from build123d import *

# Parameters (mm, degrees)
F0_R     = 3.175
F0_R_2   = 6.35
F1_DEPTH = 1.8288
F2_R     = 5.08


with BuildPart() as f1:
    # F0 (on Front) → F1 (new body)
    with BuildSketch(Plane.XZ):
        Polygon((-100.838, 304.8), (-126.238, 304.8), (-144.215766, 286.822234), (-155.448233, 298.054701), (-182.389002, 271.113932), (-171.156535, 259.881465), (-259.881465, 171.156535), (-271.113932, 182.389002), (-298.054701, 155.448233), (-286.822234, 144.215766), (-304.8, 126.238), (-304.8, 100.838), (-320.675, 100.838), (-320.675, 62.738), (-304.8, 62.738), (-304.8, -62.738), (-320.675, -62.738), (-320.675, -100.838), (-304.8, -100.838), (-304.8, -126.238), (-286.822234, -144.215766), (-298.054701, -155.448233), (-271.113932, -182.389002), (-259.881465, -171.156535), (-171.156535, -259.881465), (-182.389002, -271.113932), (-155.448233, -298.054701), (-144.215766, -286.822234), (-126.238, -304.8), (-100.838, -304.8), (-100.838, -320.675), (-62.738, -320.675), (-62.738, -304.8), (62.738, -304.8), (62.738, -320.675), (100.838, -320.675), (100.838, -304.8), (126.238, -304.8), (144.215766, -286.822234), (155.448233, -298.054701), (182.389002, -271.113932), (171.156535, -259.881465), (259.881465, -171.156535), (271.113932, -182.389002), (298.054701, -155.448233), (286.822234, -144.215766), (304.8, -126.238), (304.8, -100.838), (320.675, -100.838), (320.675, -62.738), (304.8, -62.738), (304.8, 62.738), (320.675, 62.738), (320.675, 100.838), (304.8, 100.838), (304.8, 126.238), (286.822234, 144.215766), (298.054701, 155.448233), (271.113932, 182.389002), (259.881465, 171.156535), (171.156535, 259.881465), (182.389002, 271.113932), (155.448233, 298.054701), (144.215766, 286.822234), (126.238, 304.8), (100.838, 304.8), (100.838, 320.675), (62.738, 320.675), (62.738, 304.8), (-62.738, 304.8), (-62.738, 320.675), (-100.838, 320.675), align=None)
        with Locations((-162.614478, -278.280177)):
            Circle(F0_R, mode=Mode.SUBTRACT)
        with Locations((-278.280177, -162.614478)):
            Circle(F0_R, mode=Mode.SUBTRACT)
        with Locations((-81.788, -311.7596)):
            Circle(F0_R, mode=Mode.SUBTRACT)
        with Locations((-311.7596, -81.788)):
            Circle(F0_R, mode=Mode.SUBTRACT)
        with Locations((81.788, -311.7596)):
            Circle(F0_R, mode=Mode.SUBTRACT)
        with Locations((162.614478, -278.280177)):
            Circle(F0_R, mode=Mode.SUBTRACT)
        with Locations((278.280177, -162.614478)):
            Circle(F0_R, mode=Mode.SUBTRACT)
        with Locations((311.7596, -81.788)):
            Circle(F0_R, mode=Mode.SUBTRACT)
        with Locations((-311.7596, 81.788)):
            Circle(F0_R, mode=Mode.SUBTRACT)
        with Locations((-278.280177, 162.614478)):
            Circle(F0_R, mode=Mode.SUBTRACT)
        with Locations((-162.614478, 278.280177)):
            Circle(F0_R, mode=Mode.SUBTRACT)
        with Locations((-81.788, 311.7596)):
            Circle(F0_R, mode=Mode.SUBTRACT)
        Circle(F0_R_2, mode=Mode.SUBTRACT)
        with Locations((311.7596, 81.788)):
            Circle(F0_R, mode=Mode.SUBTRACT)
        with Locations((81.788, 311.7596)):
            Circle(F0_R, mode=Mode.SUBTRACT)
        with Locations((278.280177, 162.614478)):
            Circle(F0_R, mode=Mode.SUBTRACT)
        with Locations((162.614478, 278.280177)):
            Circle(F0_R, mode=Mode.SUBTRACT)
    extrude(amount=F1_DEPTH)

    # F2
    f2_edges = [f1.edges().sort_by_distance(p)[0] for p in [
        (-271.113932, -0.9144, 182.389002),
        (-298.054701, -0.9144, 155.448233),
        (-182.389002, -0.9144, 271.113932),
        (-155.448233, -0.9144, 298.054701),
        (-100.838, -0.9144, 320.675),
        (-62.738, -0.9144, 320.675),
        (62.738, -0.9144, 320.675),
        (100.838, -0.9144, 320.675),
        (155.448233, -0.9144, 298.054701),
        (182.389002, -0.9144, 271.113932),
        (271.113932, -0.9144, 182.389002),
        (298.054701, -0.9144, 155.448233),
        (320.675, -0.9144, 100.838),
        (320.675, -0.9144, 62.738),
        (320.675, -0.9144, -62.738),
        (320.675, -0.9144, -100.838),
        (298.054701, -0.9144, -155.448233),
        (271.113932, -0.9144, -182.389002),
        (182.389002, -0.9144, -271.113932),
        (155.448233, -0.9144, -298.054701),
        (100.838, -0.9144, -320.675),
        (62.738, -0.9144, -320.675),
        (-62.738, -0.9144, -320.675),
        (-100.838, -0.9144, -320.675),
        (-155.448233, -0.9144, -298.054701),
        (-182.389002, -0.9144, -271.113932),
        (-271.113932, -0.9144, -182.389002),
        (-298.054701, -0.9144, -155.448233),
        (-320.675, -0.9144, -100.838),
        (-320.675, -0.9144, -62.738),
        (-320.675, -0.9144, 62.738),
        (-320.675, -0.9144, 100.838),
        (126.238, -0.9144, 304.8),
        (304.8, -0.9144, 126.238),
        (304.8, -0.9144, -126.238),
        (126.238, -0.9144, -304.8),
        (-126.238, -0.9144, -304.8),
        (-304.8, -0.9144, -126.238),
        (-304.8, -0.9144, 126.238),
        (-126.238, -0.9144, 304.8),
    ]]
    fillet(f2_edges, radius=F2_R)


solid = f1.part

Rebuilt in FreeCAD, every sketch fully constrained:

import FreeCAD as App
import Part
import Sketcher
from FreeCAD import Vector
Q = App.Units.Quantity


def edges_at(feature, points):
    """Names of the edges that pass closest to the given points."""
    edges = feature.Shape.Edges
    near = lambda p: min(range(len(edges)), key=lambda i: edges[i].distToShape(Part.Vertex(*p))[0])
    return sorted({f"Edge{near(p) + 1}" for p in points})


def add_polygon(sketch, points):
    """Adds a closed chain of lines whose ends are joined by coincident constraints."""
    first, n = sketch.GeometryCount, len(points)
    for a, b in zip(points, points[1:] + points[:1]):
        sketch.addGeometry(Part.LineSegment(App.Vector(*a, 0), App.Vector(*b, 0)), False)
    for i in range(n):
        sketch.addConstraint(Sketcher.Constraint("Coincident", first + i, 2, first + (i + 1) % n, 1))

doc = App.newDocument("Part")
body = doc.addObject("PartDesign::Body", "Body")

sketch1 = doc.addObject("Sketcher::SketchObject", "Sketch")
body.addObject(sketch1)
sketch1.AttachmentSupport = (doc.XZ_Plane, [""])
sketch1.MapMode = "FlatFace"
add_polygon(sketch1, [(-100.8, 304.8), (-126.2, 304.8), (-144.2, 286.8), (-155.4, 298.1), (-182.4, 271.1), (-171.2, 259.9), (-259.9, 171.2), (-271.1, 182.4), (-298.1, 155.4), (-286.8, 144.2), (-304.8, 126.2), (-304.8, 100.8), (-320.7, 100.8), (-320.7, 62.7), (-304.8, 62.7), (-304.8, -62.7), (-320.7, -62.7), (-320.7, -100.8), (-304.8, -100.8), (-304.8, -126.2), (-286.8, -144.2), (-298.1, -155.4), (-271.1, -182.4), (-259.9, -171.2), (-171.2, -259.9), (-182.4, -271.1), (-155.4, -298.1), (-144.2, -286.8), (-126.2, -304.8), (-100.8, -304.8), (-100.8, -320.7), (-62.7, -320.7), (-62.7, -304.8), (62.7, -304.8), (62.7, -320.7), (100.8, -320.7), (100.8, -304.8), (126.2, -304.8), (144.2, -286.8), (155.4, -298.1), (182.4, -271.1), (171.2, -259.9), (259.9, -171.2), (271.1, -182.4), (298.1, -155.4), (286.8, -144.2), (304.8, -126.2), (304.8, -100.8), (320.7, -100.8), (320.7, -62.7), (304.8, -62.7), (304.8, 62.7), (320.7, 62.7), (320.7, 100.8), (304.8, 100.8), (304.8, 126.2), (286.8, 144.2), (298.1, 155.4), (271.1, 182.4), (259.9, 171.2), (171.2, 259.9), (182.4, 271.1), (155.4, 298.1), (144.2, 286.8), (126.2, 304.8), (100.8, 304.8), (100.8, 320.7), (62.7, 320.7), (62.7, 304.8), (-62.7, 304.8), (-62.7, 320.7), (-100.8, 320.7)])
sketch1.addGeometry(Part.Circle(Vector(-162.6, -278.3, 0), Vector(0, 0, 1), 3.2), False)
sketch1.addGeometry(Part.Circle(Vector(-278.3, -162.6, 0), Vector(0, 0, 1), 3.2), False)
sketch1.addGeometry(Part.Circle(Vector(-81.8, -311.8, 0), Vector(0, 0, 1), 3.2), False)
sketch1.addGeometry(Part.Circle(Vector(-311.8, -81.8, 0), Vector(0, 0, 1), 3.2), False)
sketch1.addGeometry(Part.Circle(Vector(81.8, -311.8, 0), Vector(0, 0, 1), 3.2), False)
sketch1.addGeometry(Part.Circle(Vector(162.6, -278.3, 0), Vector(0, 0, 1), 3.2), False)
sketch1.addGeometry(Part.Circle(Vector(278.3, -162.6, 0), Vector(0, 0, 1), 3.2), False)
sketch1.addGeometry(Part.Circle(Vector(311.8, -81.8, 0), Vector(0, 0, 1), 3.2), False)
sketch1.addGeometry(Part.Circle(Vector(-311.8, 81.8, 0), Vector(0, 0, 1), 3.2), False)
sketch1.addGeometry(Part.Circle(Vector(-278.3, 162.6, 0), Vector(0, 0, 1), 3.2), False)
sketch1.addGeometry(Part.Circle(Vector(-162.6, 278.3, 0), Vector(0, 0, 1), 3.2), False)
sketch1.addGeometry(Part.Circle(Vector(-81.8, 311.8, 0), Vector(0, 0, 1), 3.2), False)
sketch1.addGeometry(Part.Circle(Vector(0, 0, 0), Vector(0, 0, 1), 6.3), False)
sketch1.addGeometry(Part.Circle(Vector(311.8, 81.8, 0), Vector(0, 0, 1), 3.2), False)
sketch1.addGeometry(Part.Circle(Vector(81.8, 311.8, 0), Vector(0, 0, 1), 3.2), False)
sketch1.addGeometry(Part.Circle(Vector(278.3, 162.6, 0), Vector(0, 0, 1), 3.2), False)
sketch1.addGeometry(Part.Circle(Vector(162.6, 278.3, 0), Vector(0, 0, 1), 3.2), False)
sketch1.addConstraint([
    Sketcher.Constraint("Horizontal", 0),
    Sketcher.Constraint("Vertical", 10),
    Sketcher.Constraint("Horizontal", 11),
    Sketcher.Constraint("Vertical", 12),
    Sketcher.Constraint("Horizontal", 13),
    Sketcher.Constraint("Vertical", 14),
    Sketcher.Constraint("Horizontal", 15),
    Sketcher.Constraint("Vertical", 16),
    Sketcher.Constraint("Horizontal", 17),
    Sketcher.Constraint("Vertical", 18),
    Sketcher.Constraint("Horizontal", 28),
    Sketcher.Constraint("Vertical", 29),
    Sketcher.Constraint("Horizontal", 30),
    Sketcher.Constraint("Vertical", 31),
    Sketcher.Constraint("Horizontal", 32),
    Sketcher.Constraint("Vertical", 33),
    Sketcher.Constraint("Horizontal", 34),
    Sketcher.Constraint("Vertical", 35),
    Sketcher.Constraint("Horizontal", 36),
    Sketcher.Constraint("Vertical", 46),
    Sketcher.Constraint("Horizontal", 47),
    Sketcher.Constraint("Vertical", 48),
    Sketcher.Constraint("Horizontal", 49),
    Sketcher.Constraint("Vertical", 50),
    Sketcher.Constraint("Horizontal", 51),
    Sketcher.Constraint("Vertical", 52),
    Sketcher.Constraint("Horizontal", 53),
    Sketcher.Constraint("Vertical", 54),
    Sketcher.Constraint("Horizontal", 64),
    Sketcher.Constraint("Vertical", 65),
    Sketcher.Constraint("Horizontal", 66),
    Sketcher.Constraint("Vertical", 67),
    Sketcher.Constraint("Horizontal", 68),
    Sketcher.Constraint("Vertical", 69),
    Sketcher.Constraint("Horizontal", 70),
    Sketcher.Constraint("Vertical", 71),
    Sketcher.Constraint("Coincident", 84, 3, -1, 1),
    Sketcher.Constraint("Equal", 72, 73),
    Sketcher.Constraint("Equal", 73, 74),
    Sketcher.Constraint("Equal", 74, 75),
    Sketcher.Constraint("Equal", 75, 76),
    Sketcher.Constraint("Equal", 76, 77),
    Sketcher.Constraint("Equal", 77, 78),
    Sketcher.Constraint("Equal", 78, 79),
    Sketcher.Constraint("Equal", 79, 80),
    Sketcher.Constraint("Equal", 80, 81),
    Sketcher.Constraint("Equal", 81, 82),
    Sketcher.Constraint("Equal", 82, 83),
    Sketcher.Constraint("Equal", 83, 85),
    Sketcher.Constraint("Equal", 85, 86),
    Sketcher.Constraint("Equal", 86, 87),
    Sketcher.Constraint("Equal", 87, 88),
    Sketcher.Constraint("Symmetric", 79, 3, 80, 3, -1, 1),
    Sketcher.Constraint("Symmetric", 78, 3, 81, 3, -1, 1),
    Sketcher.Constraint("Symmetric", 77, 3, 82, 3, -1, 1),
    Sketcher.Constraint("Symmetric", 76, 3, 83, 3, -1, 1),
    Sketcher.Constraint("Symmetric", 75, 3, 85, 3, -1, 1),
    Sketcher.Constraint("Symmetric", 74, 3, 86, 3, -1, 1),
    Sketcher.Constraint("Symmetric", 73, 3, 87, 3, -1, 1),
    Sketcher.Constraint("Symmetric", 72, 3, 88, 3, -1, 1),
    Sketcher.Constraint("Symmetric", 0, 2, 36, 2, -1, 1),
    Sketcher.Constraint("Symmetric", 1, 2, 37, 2, -1, 1),
    Sketcher.Constraint("Symmetric", 2, 2, 38, 2, -1, 1),
    Sketcher.Constraint("Symmetric", 3, 2, 39, 2, -1, 1),
    Sketcher.Constraint("Symmetric", 4, 2, 40, 2, -1, 1),
    Sketcher.Constraint("Symmetric", 5, 2, 41, 2, -1, 1),
    Sketcher.Constraint("Symmetric", 6, 2, 42, 2, -1, 1),
    Sketcher.Constraint("Symmetric", 7, 2, 43, 2, -1, 1),
    Sketcher.Constraint("Symmetric", 8, 2, 44, 2, -1, 1),
    Sketcher.Constraint("Symmetric", 9, 2, 45, 2, -1, 1),
    Sketcher.Constraint("Symmetric", 11, 2, 47, 2, -1, 1),
    Sketcher.Constraint("Symmetric", 13, 2, 49, 2, -1, 1),
    Sketcher.Constraint("Symmetric", 15, 2, 51, 2, -1, 1),
    Sketcher.Constraint("Symmetric", 17, 2, 53, 2, -1, 1),
    Sketcher.Constraint("Symmetric", 19, 2, 55, 2, -1, 1),
    Sketcher.Constraint("Symmetric", 20, 2, 56, 2, -1, 1),
    Sketcher.Constraint("Symmetric", 21, 2, 57, 2, -1, 1),
    Sketcher.Constraint("Symmetric", 22, 2, 58, 2, -1, 1),
    Sketcher.Constraint("Symmetric", 23, 2, 59, 2, -1, 1),
    Sketcher.Constraint("Symmetric", 24, 2, 60, 2, -1, 1),
    Sketcher.Constraint("Symmetric", 25, 2, 61, 2, -1, 1),
    Sketcher.Constraint("Symmetric", 26, 2, 62, 2, -1, 1),
    Sketcher.Constraint("Symmetric", 27, 2, 63, 2, -1, 1),
    Sketcher.Constraint("Symmetric", 29, 2, 65, 2, -1, 1),
    Sketcher.Constraint("Symmetric", 31, 2, 67, 2, -1, 1),
    Sketcher.Constraint("Symmetric", 33, 2, 69, 2, -1, 1),
    Sketcher.Constraint("Symmetric", 74, 3, 76, 3, -2),
    Sketcher.Constraint("Symmetric", 72, 3, 77, 3, -2),
    Sketcher.Constraint("Symmetric", 73, 3, 78, 3, -2),
    Sketcher.Constraint("Symmetric", 75, 3, 79, 3, -2),
    Sketcher.Constraint("Symmetric", 30, 2, 33, 2, -2),
    Sketcher.Constraint("Symmetric", 28, 2, 35, 2, -2),
    Sketcher.Constraint("Symmetric", 26, 2, 37, 2, -2),
    Sketcher.Constraint("Symmetric", 25, 2, 38, 2, -2),
    Sketcher.Constraint("Symmetric", 24, 2, 39, 2, -2),
    Sketcher.Constraint("Symmetric", 23, 2, 40, 2, -2),
    Sketcher.Constraint("Symmetric", 22, 2, 41, 2, -2),
    Sketcher.Constraint("Symmetric", 21, 2, 42, 2, -2),
    Sketcher.Constraint("Symmetric", 20, 2, 43, 2, -2),
    Sketcher.Constraint("Symmetric", 19, 2, 44, 2, -2),
    Sketcher.Constraint("Symmetric", 18, 2, 45, 2, -2),
    Sketcher.Constraint("Symmetric", 16, 2, 47, 2, -2),
    Sketcher.Constraint("Perpendicular", 1, 2),
    Sketcher.Constraint("Perpendicular", 2, 3),
    Sketcher.Constraint("Perpendicular", 3, 4),
    Sketcher.Constraint("Perpendicular", 4, 5),
    Sketcher.Constraint("Perpendicular", 5, 6),
    Sketcher.Constraint("Perpendicular", 6, 7),
    Sketcher.Constraint("Perpendicular", 7, 8),
    Sketcher.Constraint("Perpendicular", 8, 9),
    Sketcher.Constraint("Perpendicular", 9, 19),
    Sketcher.Constraint("Perpendicular", 26, 27),
    Sketcher.Constraint("Perpendicular", 45, 55),
    Sketcher.Constraint("Horizontal", 28, 2, 31, 2),
    Sketcher.Constraint("Horizontal", 15, 2, 48, 2),
    Sketcher.Constraint("Vertical", 10, 2, 13, 2),
    Sketcher.Constraint("Vertical", 29, 2, 70, 2),
    Sketcher.Constraint("Equal", 64, 10),
    Sketcher.Constraint("Equal", 70, 12),
    Sketcher.Constraint("Equal", 68, 14),
    Sketcher.Constraint("Equal", 53, 29),
    Sketcher.Constraint("Equal", 2, 4),
    Sketcher.Constraint("Equal", 4, 6),
    Sketcher.Constraint("Equal", 3, 7),
    Sketcher.Constraint("Equal", 6, 8),
    Sketcher.Constraint("Equal", 1, 9),
    Sketcher.Constraint("Diameter", 84, Q("0.5 in")),
    Sketcher.Constraint("Diameter", 72, Q("0.25 in")),
    Sketcher.Constraint("DistanceX", 0, 2, 0, 1, Q("1 in")),
    Sketcher.Constraint("DistanceX", 30, 1, 30, 2, Q("1.5 in")),
    Sketcher.Constraint("DistanceY", -1, 1, 0, 2, Q("12 in")),
    Sketcher.Constraint("Distance", 3, Q("1.5 in")),
    Sketcher.Constraint("DistanceX", 32, 1, 32, 2, Q("4.94 in")),
    Sketcher.Constraint("Distance", 5, Q("4.94 in")),
    Sketcher.Constraint("DistanceX", 11, 2, 11, 1, Q("0.625 in")),
    Sketcher.Constraint("DistanceX", 74, 3, -1, 1, Q("3.22 in")),
    Sketcher.Constraint("DistanceY", 75, 3, -1, 1, Q("3.22 in")),
    Sketcher.Constraint("DistanceY", 74, 3, -1, 1, Q("12.274 in")),
    Sketcher.Constraint("DistanceX", 75, 3, -1, 1, Q("12.274 in")),
    Sketcher.Constraint("DistanceY", -1, 1, 2, 2, Q("298.054701 mm")),
    Sketcher.Constraint("DistanceX", 72, 3, -1, 1, Q("162.614478 mm")),
    Sketcher.Constraint("DistanceY", 73, 3, -1, 1, Q("162.614478 mm")),
    Sketcher.Constraint("DistanceY", 72, 3, -1, 1, Q("278.280177 mm")),
    Sketcher.Constraint("DistanceX", 73, 3, -1, 1, Q("278.280177 mm")),
])
pad1 = doc.addObject("PartDesign::Pad", "Pad")
body.addObject(pad1)
pad1.Profile = sketch1
pad1.Length = Q("0.072 in")
doc.recompute()

fillet = doc.addObject("PartDesign::Fillet", "Fillet")
body.addObject(fillet)
fillet.Base = (pad1, edges_at(pad1, [
    (-271.114, -0.914, 182.389),
    (-298.055, -0.914, 155.448),
    (-182.389, -0.914, 271.114),
    (-155.448, -0.914, 298.055),
    (-100.838, -0.914, 320.675),
    (-62.738, -0.914, 320.675),
    (62.738, -0.914, 320.675),
    (100.838, -0.914, 320.675),
    (155.448, -0.914, 298.055),
    (182.389, -0.914, 271.114),
    (271.114, -0.914, 182.389),
    (298.055, -0.914, 155.448),
    (320.675, -0.914, 100.838),
    (320.675, -0.914, 62.738),
    (320.675, -0.914, -62.738),
    (320.675, -0.914, -100.838),
    (298.055, -0.914, -155.448),
    (271.114, -0.914, -182.389),
    (182.389, -0.914, -271.114),
    (155.448, -0.914, -298.055),
    (100.838, -0.914, -320.675),
    (62.738, -0.914, -320.675),
    (-62.738, -0.914, -320.675),
    (-100.838, -0.914, -320.675),
    (-155.448, -0.914, -298.055),
    (-182.389, -0.914, -271.114),
    (-271.114, -0.914, -182.389),
    (-298.055, -0.914, -155.448),
    (-320.675, -0.914, -100.838),
    (-320.675, -0.914, -62.738),
    (-320.675, -0.914, 62.738),
    (-320.675, -0.914, 100.838),
    (126.238, -0.914, 304.8),
    (304.8, -0.914, 126.238),
    (304.8, -0.914, -126.238),
    (126.238, -0.914, -304.8),
    (-126.238, -0.914, -304.8),
    (-304.8, -0.914, -126.238),
    (-304.8, -0.914, 126.238),
    (-126.238, -0.914, 304.8),
]))
fillet.Radius = Q("0.2 in")

doc.recompute()
